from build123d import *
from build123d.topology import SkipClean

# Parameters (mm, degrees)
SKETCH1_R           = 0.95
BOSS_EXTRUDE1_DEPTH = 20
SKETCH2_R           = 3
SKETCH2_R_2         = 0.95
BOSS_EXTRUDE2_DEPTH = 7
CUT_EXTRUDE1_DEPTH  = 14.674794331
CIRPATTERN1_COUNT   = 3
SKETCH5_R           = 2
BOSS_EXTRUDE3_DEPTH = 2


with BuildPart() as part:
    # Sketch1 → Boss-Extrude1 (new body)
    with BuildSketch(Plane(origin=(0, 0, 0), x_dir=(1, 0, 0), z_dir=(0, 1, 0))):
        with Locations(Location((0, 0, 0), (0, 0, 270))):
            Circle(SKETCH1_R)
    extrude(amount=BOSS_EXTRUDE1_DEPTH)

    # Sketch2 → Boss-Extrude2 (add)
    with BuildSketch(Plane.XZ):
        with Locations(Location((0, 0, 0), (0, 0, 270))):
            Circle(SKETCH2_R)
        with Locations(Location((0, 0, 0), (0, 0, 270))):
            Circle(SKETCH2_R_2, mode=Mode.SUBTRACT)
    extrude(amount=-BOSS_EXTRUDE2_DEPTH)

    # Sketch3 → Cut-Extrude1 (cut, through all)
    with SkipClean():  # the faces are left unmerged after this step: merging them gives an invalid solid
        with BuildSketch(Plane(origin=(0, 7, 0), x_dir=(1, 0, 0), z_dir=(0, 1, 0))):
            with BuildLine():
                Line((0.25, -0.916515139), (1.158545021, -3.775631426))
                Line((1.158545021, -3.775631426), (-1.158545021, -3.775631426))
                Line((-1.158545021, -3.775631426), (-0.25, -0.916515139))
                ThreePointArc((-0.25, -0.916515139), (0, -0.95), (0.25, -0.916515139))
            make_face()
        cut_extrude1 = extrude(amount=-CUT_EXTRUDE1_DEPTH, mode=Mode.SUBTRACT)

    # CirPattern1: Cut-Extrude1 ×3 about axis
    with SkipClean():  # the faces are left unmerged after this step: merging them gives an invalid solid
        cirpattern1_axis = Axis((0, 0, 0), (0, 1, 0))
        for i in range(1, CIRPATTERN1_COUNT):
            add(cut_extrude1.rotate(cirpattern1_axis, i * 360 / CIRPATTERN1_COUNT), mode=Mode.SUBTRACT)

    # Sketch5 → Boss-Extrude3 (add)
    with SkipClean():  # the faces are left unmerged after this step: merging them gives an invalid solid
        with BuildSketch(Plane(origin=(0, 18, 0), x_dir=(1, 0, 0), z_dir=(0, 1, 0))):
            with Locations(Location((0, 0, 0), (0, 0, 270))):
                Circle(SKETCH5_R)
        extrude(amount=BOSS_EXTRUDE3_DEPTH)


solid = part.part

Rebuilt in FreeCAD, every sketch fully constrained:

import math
import FreeCAD as App
import Part
import Sketcher
from FreeCAD import Vector

doc = App.newDocument("Part")
params = doc.addObject("Spreadsheet::Sheet", "Params")
for row, (alias, value) in enumerate([
    ("sketch1_diameter", "1.9 mm"),
    ("pad1_length", "20 mm"),
    ("sketch2_diameter", "6 mm"),
    ("sketch2_diameter2", "1.9 mm"),
    ("pad2_length", "7 mm"),
    ("sketch3_radius", "0.95 mm"),
    ("sketch3_length", "3 mm"),
    ("sketch4_diameter", "4 mm"),
    ("pad3_length", "2 mm"),
], start=1):
    params.set(f"A{row}", alias)
    params.set(f"B{row}", "=" + value)
    params.setAlias(f"B{row}", alias)

body = doc.addObject("PartDesign::Body", "Body")

# Sketch on XZ plane
sketch1 = doc.addObject("Sketcher::SketchObject", "Sketch")
body.addObject(sketch1)
sketch1.AttachmentSupport = (doc.XZ_Plane, [""])
sketch1.MapMode = "FlatFace"
sketch1.addGeometry(Part.Circle(Vector(0, 0, 0), Vector(0, 0, 1), 0.9), False)
sketch1.addConstraint([
    Sketcher.Constraint("Coincident", 0, 3, -1, 1),
    Sketcher.Constraint("Diameter", 0, 1.9),
])
sketch1.setExpression("Constraints[1]", "Params.sketch1_diameter")
pad1 = doc.addObject("PartDesign::Pad", "Pad")
body.addObject(pad1)
pad1.Profile = sketch1
pad1.setExpression("Length", "Params.pad1_length")
pad1.Reversed = True

# Sketch on XZ plane
sketch2 = doc.addObject("Sketcher::SketchObject", "Sketch001")
body.addObject(sketch2)
sketch2.AttachmentSupport = (doc.XZ_Plane, [""])
sketch2.MapMode = "FlatFace"
sketch2.addGeometry([
    Part.Circle(Vector(0, 0, 0), Vector(0, 0, 1), 3),
    Part.Circle(Vector(0, 0, 0), Vector(0, 0, 1), 0.9),
], False)
sketch2.addConstraint([
    Sketcher.Constraint("Coincident", 0, 3, -1, 1),
    Sketcher.Constraint("Coincident", 1, 3, -1, 1),
    Sketcher.Constraint("Diameter", 0, 6.0),
    Sketcher.Constraint("Diameter", 1, 1.9),
])
sketch2.setExpression("Constraints[2]", "Params.sketch2_diameter")
sketch2.setExpression("Constraints[3]", "Params.sketch2_diameter2")
pad2 = doc.addObject("PartDesign::Pad", "Pad001")
body.addObject(pad2)
pad2.Profile = sketch2
pad2.setExpression("Length", "Params.pad2_length")
pad2.Reversed = True

# Sketch on XZ plane
sketch3 = doc.addObject("Sketcher::SketchObject", "Sketch002")
body.addObject(sketch3)
sketch3.AttachmentSupport = (doc.XZ_Plane, [""])
sketch3.MapMode = "FlatFace"
sketch3.AttachmentOffset = App.Placement(Vector(0, 0, -7), App.Rotation())
sketch3.addGeometry([
    Part.LineSegment(Vector(1.2, 3.8, 0), Vector(0.2, 0.9, 0)),
    Part.ArcOfCircle(Part.Circle(Vector(0, 0, 0), Vector(0, 0, 1), 0.9), math.radians(75), math.radians(105)),
    Part.LineSegment(Vector(-0.2, 0.9, 0), Vector(-1.2, 3.8, 0)),
    Part.LineSegment(Vector(-1.2, 3.8, 0), Vector(1.2, 3.8, 0)),
], False)
sketch3.addConstraint([
    Sketcher.Constraint("Coincident", 0, 2, 1, 1),
    Sketcher.Constraint("Coincident", 1, 2, 2, 1),
    Sketcher.Constraint("Coincident", 2, 2, 3, 1),
    Sketcher.Constraint("Coincident", 3, 2, 0, 1),
    Sketcher.Constraint("Horizontal", 3),
    Sketcher.Constraint("Coincident", 1, 3, -1, 1),
    Sketcher.Constraint("Horizontal", 0, 2, 1, 2),
    Sketcher.Constraint("Equal", 0, 2),
    Sketcher.Constraint("Radius", 1, 0.95),
    Sketcher.Constraint("Distance", 0, 3.0),
    Sketcher.Constraint("DistanceX", 1, 2, 0, 2, 0.5),
    Sketcher.Constraint("DistanceX", 3, 1, 3, 2, 2.31709),
])
sketch3.setExpression("Constraints[8]", "Params.sketch3_radius")
sketch3.setExpression("Constraints[9]", "Params.sketch3_length")
pocket1 = doc.addObject("PartDesign::Pocket", "Pocket")
body.addObject(pocket1)
pocket1.Profile = sketch3
pocket1.Type = "ThroughAll"
pocket1.Reversed = True
doc.recompute()

polarpattern = doc.addObject("PartDesign::PolarPattern", "PolarPattern")
body.addObject(polarpattern)
polarpattern.Originals = [pocket1]
polarpattern.Axis = (doc.Y_Axis, [""])
polarpattern.Angle = 360
polarpattern.Occurrences = 3
body.Tip = polarpattern

# Sketch on XZ plane
sketch4 = doc.addObject("Sketcher::SketchObject", "Sketch003")
body.addObject(sketch4)
sketch4.AttachmentSupport = (doc.XZ_Plane, [""])
sketch4.MapMode = "FlatFace"
sketch4.AttachmentOffset = App.Placement(Vector(0, 0, -18), App.Rotation())
sketch4.addGeometry(Part.Circle(Vector(0, 0, 0), Vector(0, 0, 1), 2), False)
sketch4.addConstraint([
    Sketcher.Constraint("Coincident", 0, 3, -1, 1),
    Sketcher.Constraint("Diameter", 0, 4.0),
])
sketch4.setExpression("Constraints[1]", "Params.sketch4_diameter")
pad3 = doc.addObject("PartDesign::Pad", "Pad002")
body.addObject(pad3)
pad3.Profile = sketch4
pad3.setExpression("Length", "Params.pad3_length")
pad3.Reversed = True

doc.recompute()
